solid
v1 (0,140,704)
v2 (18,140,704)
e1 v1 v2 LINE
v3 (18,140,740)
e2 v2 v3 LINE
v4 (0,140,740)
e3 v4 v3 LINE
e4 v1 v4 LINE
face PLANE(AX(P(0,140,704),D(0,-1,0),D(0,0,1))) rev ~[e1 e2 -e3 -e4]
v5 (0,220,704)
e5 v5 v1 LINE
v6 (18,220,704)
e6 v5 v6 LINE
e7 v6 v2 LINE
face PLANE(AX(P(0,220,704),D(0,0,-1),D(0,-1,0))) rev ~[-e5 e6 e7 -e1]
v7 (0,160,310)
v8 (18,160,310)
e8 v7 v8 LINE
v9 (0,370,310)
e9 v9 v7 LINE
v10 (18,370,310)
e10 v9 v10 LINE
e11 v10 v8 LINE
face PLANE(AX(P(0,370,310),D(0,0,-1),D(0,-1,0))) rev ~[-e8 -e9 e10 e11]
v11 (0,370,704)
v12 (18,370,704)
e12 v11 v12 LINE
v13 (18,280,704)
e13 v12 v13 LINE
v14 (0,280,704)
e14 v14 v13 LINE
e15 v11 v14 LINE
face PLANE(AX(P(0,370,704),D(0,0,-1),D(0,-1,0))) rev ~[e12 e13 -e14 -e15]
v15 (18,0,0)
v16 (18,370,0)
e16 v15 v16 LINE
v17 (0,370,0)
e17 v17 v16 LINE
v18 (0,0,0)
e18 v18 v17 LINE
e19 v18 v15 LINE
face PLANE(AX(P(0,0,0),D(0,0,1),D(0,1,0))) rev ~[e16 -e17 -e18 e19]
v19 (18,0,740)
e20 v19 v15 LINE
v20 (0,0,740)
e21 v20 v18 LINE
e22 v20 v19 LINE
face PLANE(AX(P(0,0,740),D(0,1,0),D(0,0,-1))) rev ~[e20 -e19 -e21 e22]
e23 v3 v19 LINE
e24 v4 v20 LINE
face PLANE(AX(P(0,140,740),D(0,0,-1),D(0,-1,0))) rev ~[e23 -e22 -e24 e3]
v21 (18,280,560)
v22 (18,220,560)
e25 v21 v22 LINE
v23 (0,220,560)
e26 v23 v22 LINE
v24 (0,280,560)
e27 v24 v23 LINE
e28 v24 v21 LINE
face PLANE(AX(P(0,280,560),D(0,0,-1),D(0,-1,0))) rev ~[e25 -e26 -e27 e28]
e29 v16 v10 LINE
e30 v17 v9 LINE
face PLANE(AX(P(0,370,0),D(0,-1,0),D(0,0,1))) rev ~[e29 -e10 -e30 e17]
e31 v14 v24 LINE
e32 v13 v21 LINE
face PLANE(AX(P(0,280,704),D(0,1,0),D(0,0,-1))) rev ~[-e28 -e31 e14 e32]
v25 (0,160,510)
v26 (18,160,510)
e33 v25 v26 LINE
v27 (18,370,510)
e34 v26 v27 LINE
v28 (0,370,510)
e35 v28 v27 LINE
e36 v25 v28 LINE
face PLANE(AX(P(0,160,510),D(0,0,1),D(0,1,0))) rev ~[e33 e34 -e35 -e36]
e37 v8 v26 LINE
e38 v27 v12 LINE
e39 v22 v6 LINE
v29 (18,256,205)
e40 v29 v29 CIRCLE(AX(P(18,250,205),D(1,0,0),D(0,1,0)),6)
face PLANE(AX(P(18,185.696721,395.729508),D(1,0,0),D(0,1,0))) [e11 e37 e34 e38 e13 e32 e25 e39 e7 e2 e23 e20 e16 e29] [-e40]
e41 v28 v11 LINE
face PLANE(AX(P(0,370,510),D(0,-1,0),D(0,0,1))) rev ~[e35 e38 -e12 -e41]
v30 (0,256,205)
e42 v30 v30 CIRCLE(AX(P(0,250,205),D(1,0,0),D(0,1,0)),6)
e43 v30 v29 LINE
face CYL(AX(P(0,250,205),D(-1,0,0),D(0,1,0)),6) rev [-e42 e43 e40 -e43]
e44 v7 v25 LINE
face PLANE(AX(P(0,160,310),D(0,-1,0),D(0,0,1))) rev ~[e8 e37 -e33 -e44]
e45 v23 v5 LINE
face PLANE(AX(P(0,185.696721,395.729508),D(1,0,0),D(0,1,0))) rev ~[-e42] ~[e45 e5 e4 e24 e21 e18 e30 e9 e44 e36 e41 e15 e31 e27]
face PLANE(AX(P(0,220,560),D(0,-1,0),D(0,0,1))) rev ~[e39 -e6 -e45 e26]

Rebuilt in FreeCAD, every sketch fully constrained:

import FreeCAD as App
import Part
import Sketcher

V = App.Vector


def add_polygon(sketch, points):
    """Adds a closed chain of lines whose ends are joined by coincident constraints."""
    first, n = sketch.GeometryCount, len(points)
    for a, b in zip(points, points[1:] + points[:1]):
        sketch.addGeometry(Part.LineSegment(App.Vector(*a, 0), App.Vector(*b, 0)), False)
    for i in range(n):
        sketch.addConstraint(Sketcher.Constraint("Coincident", first + i, 2, first + (i + 1) % n, 1))

doc = App.newDocument("Part")
body = doc.addObject("PartDesign::Body", "Body")

# Sketch on YZ plane
sketch1 = body.newObject("Sketcher::SketchObject", "Sketch")
sketch1.AttachmentSupport = (doc.getObject("YZ_Plane"), [""])
sketch1.MapMode = "FlatFace"
add_polygon(sketch1, [(0, 740), (0, 0), (370, 0), (370, 310), (160, 310), (160, 510), (370, 510), (370, 704), (280, 704), (280, 560), (220, 560), (220, 704), (140, 704), (140, 740)])  # lines 0-13
sketch1.addGeometry(Part.Circle(V(250, 205, 0), V(0, 0, 1), 6), False)  # 14
sketch1.addConstraint(Sketcher.Constraint("Vertical", 0))
sketch1.addConstraint(Sketcher.Constraint("Horizontal", 1))
sketch1.addConstraint(Sketcher.Constraint("Vertical", 2))
sketch1.addConstraint(Sketcher.Constraint("Horizontal", 3))
sketch1.addConstraint(Sketcher.Constraint("Vertical", 4))
sketch1.addConstraint(Sketcher.Constraint("Horizontal", 5))
sketch1.addConstraint(Sketcher.Constraint("Vertical", 6))
sketch1.addConstraint(Sketcher.Constraint("Horizontal", 7))
sketch1.addConstraint(Sketcher.Constraint("Vertical", 8))
sketch1.addConstraint(Sketcher.Constraint("Horizontal", 9))
sketch1.addConstraint(Sketcher.Constraint("Vertical", 10))
sketch1.addConstraint(Sketcher.Constraint("Horizontal", 11))
sketch1.addConstraint(Sketcher.Constraint("Vertical", 12))
sketch1.addConstraint(Sketcher.Constraint("Horizontal", 13))
sketch1.addConstraint(Sketcher.Constraint("Coincident", 0, 2, -1, 1))
sketch1.addConstraint(Sketcher.Constraint("Horizontal", 7, 2, 10, 2))
sketch1.addConstraint(Sketcher.Constraint("Vertical", 2, 2, 5, 2))
sketch1.addConstraint(Sketcher.Constraint("Diameter", 14, 12.0))
sketch1.addConstraint(Sketcher.Constraint("DistanceX", 1, 1, 1, 2, 370.0))
sketch1.addConstraint(Sketcher.Constraint("DistanceX", 3, 2, 3, 1, 210.0))
sketch1.addConstraint(Sketcher.Constraint("DistanceX", 7, 2, 7, 1, 90.0))
sketch1.addConstraint(Sketcher.Constraint("DistanceX", 9, 2, 9, 1, 60.0))
sketch1.addConstraint(Sketcher.Constraint("DistanceX", 11, 2, 11, 1, 80.0))
sketch1.addConstraint(Sketcher.Constraint("DistanceY", 0, 2, 0, 1, 740.0))
sketch1.addConstraint(Sketcher.Constraint("DistanceY", 2, 1, 2, 2, 310.0))
sketch1.addConstraint(Sketcher.Constraint("DistanceY", 4, 1, 4, 2, 200.0))
sketch1.addConstraint(Sketcher.Constraint("DistanceY", 6, 1, 6, 2, 194.0))
sketch1.addConstraint(Sketcher.Constraint("DistanceY", 8, 2, 8, 1, 144.0))
sketch1.addConstraint(Sketcher.Constraint("DistanceX", -1, 1, 14, 3, 250.0))
sketch1.addConstraint(Sketcher.Constraint("DistanceY", -1, 1, 14, 3, 205.0))
pad1 = body.newObject("PartDesign::Pad", "Pad")
pad1.Profile = sketch1
pad1.Length = 18

doc.recompute()
